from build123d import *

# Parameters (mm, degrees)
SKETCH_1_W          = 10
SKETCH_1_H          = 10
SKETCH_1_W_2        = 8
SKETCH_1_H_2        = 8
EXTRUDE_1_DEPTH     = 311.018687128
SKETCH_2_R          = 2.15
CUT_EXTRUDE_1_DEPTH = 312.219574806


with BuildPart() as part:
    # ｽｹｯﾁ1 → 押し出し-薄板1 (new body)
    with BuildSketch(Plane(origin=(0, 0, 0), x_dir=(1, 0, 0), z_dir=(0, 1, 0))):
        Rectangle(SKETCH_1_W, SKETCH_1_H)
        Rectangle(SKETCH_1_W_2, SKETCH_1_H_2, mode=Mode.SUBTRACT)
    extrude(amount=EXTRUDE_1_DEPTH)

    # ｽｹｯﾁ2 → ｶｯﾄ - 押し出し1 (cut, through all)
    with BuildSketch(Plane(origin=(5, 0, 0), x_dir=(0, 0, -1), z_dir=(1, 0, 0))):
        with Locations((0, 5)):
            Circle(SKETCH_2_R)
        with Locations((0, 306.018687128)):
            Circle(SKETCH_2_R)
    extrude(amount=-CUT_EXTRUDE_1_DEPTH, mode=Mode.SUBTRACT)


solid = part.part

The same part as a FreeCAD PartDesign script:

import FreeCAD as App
import Part
import Sketcher
from FreeCAD import Vector
Q = App.Units.Quantity

doc = App.newDocument("Part")
body = doc.addObject("PartDesign::Body", "Body")

# Sketch on XZ plane
sketch1 = doc.addObject("Sketcher::SketchObject", "Sketch")
body.addObject(sketch1)
sketch1.AttachmentSupport = (doc.XZ_Plane, [""])
sketch1.MapMode = "FlatFace"
sketch1.addGeometry(Part.LineSegment(Vector(-5, -5, 0), Vector(-5, 5, 0)), False)
sketch1.addGeometry(Part.LineSegment(Vector(-5, 5, 0), Vector(5, 5, 0)), False)
sketch1.addGeometry(Part.LineSegment(Vector(5, 5, 0), Vector(5, -5, 0)), False)
sketch1.addGeometry(Part.LineSegment(Vector(5, -5, 0), Vector(-5, -5, 0)), False)
sketch1.addGeometry(Part.LineSegment(Vector(4, 4, 0), Vector(-4, 4, 0)), False)
sketch1.addGeometry(Part.LineSegment(Vector(-4, 4, 0), Vector(-4, -4, 0)), False)
sketch1.addGeometry(Part.LineSegment(Vector(-4, -4, 0), Vector(4, -4, 0)), False)
sketch1.addGeometry(Part.LineSegment(Vector(4, -4, 0), Vector(4, 4, 0)), False)
sketch1.addConstraint(Sketcher.Constraint("Coincident", 0, 2, 1, 1))
sketch1.addConstraint(Sketcher.Constraint("Coincident", 1, 2, 2, 1))
sketch1.addConstraint(Sketcher.Constraint("Coincident", 2, 2, 3, 1))
sketch1.addConstraint(Sketcher.Constraint("Coincident", 3, 2, 0, 1))
sketch1.addConstraint(Sketcher.Constraint("Coincident", 4, 2, 5, 1))
sketch1.addConstraint(Sketcher.Constraint("Coincident", 5, 2, 6, 1))
sketch1.addConstraint(Sketcher.Constraint("Coincident", 6, 2, 7, 1))
sketch1.addConstraint(Sketcher.Constraint("Coincident", 7, 2, 4, 1))
sketch1.addConstraint(Sketcher.Constraint("Vertical", 0))
sketch1.addConstraint(Sketcher.Constraint("Horizontal", 1))
sketch1.addConstraint(Sketcher.Constraint("Vertical", 2))
sketch1.addConstraint(Sketcher.Constraint("Horizontal", 3))
sketch1.addConstraint(Sketcher.Constraint("Horizontal", 4))
sketch1.addConstraint(Sketcher.Constraint("Vertical", 5))
sketch1.addConstraint(Sketcher.Constraint("Horizontal", 6))
sketch1.addConstraint(Sketcher.Constraint("Vertical", 7))
sketch1.addConstraint(Sketcher.Constraint("Symmetric", 0, 2, 2, 2, -1, 1))
sketch1.addConstraint(Sketcher.Constraint("Symmetric", 4, 2, 6, 2, -1, 1))
sketch1.addConstraint(Sketcher.Constraint("Equal", 3, 0))
sketch1.addConstraint(Sketcher.Constraint("Equal", 6, 5))
sketch1.addConstraint(Sketcher.Constraint("DistanceX", 1, 1, 1, 2, Q("10 mm")))
sketch1.addConstraint(Sketcher.Constraint("DistanceX", 4, 2, 4, 1, Q("8 mm")))
pad1 = doc.addObject("PartDesign::Pad", "Pad")
body.addObject(pad1)
pad1.Profile = sketch1
pad1.Length = 311.018687
pad1.Reversed = True

# Sketch on YZ plane
sketch2 = doc.addObject("Sketcher::SketchObject", "Sketch001")
body.addObject(sketch2)
sketch2.AttachmentSupport = (doc.YZ_Plane, [""])
sketch2.MapMode = "FlatFace"
sketch2.AttachmentOffset = App.Placement(Vector(0, 0, 5), App.Rotation())
sketch2.addGeometry(Part.Circle(Vector(5, 0, 0), Vector(0, 0, 1), 2.1), False)
sketch2.addGeometry(Part.Circle(Vector(306, 0, 0), Vector(0, 0, 1), 2.1), False)
sketch2.addConstraint(Sketcher.Constraint("Equal", 0, 1))
sketch2.addConstraint(Sketcher.Constraint("PointOnObject", 0, 3, -1))
sketch2.addConstraint(Sketcher.Constraint("PointOnObject", 1, 3, -1))
sketch2.addConstraint(Sketcher.Constraint("Diameter", 0, Q("4.3 mm")))
sketch2.addConstraint(Sketcher.Constraint("DistanceX", -1, 1, 0, 3, Q("5 mm")))
sketch2.addConstraint(Sketcher.Constraint("DistanceX", -1, 1, 1, 3, Q("306.018687 mm")))
pocket1 = doc.addObject("PartDesign::Pocket", "Pocket")
body.addObject(pocket1)
pocket1.Profile = sketch2
pocket1.Type = "ThroughAll"

doc.recompute()
